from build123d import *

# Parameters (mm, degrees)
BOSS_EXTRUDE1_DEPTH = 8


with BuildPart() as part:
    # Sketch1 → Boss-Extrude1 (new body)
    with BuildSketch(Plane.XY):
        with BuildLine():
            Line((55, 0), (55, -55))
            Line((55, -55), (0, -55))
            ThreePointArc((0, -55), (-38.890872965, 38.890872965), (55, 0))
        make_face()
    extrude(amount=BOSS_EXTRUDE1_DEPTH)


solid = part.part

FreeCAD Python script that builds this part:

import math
import FreeCAD as App
import Part
import Sketcher

V = App.Vector
Q = App.Units.Quantity

doc = App.newDocument("Part")
body = doc.addObject("PartDesign::Body", "Body")

# Sketch on XY plane
sketch1 = body.newObject("Sketcher::SketchObject", "Sketch")
sketch1.AttachmentSupport = (doc.getObject("XY_Plane"), [""])
sketch1.MapMode = "FlatFace"
sketch1.addGeometry([
    Part.LineSegment(V(55, -55, 0), V(55, 0, 0)),
    Part.ArcOfCircle(Part.Circle(V(0, 0, 0), V(0, 0, 1), 55), math.radians(0), math.radians(270)),
    Part.LineSegment(V(0, -55, 0), V(55, -55, 0)),
], False)
sketch1.addConstraint([
    Sketcher.Constraint("Tangent", 0, 2, 1, 1),
    Sketcher.Constraint("Tangent", 1, 2, 2, 1),
    Sketcher.Constraint("Coincident", 2, 2, 0, 1),
    Sketcher.Constraint("Vertical", 0),
    Sketcher.Constraint("Horizontal", 2),
    Sketcher.Constraint("Coincident", 1, 3, -1, 1),
    Sketcher.Constraint("Radius", 1, Q("55 mm")),
])
pad1 = body.newObject("PartDesign::Pad", "Pad")
pad1.Profile = sketch1
pad1.Length = 8

doc.recompute()
